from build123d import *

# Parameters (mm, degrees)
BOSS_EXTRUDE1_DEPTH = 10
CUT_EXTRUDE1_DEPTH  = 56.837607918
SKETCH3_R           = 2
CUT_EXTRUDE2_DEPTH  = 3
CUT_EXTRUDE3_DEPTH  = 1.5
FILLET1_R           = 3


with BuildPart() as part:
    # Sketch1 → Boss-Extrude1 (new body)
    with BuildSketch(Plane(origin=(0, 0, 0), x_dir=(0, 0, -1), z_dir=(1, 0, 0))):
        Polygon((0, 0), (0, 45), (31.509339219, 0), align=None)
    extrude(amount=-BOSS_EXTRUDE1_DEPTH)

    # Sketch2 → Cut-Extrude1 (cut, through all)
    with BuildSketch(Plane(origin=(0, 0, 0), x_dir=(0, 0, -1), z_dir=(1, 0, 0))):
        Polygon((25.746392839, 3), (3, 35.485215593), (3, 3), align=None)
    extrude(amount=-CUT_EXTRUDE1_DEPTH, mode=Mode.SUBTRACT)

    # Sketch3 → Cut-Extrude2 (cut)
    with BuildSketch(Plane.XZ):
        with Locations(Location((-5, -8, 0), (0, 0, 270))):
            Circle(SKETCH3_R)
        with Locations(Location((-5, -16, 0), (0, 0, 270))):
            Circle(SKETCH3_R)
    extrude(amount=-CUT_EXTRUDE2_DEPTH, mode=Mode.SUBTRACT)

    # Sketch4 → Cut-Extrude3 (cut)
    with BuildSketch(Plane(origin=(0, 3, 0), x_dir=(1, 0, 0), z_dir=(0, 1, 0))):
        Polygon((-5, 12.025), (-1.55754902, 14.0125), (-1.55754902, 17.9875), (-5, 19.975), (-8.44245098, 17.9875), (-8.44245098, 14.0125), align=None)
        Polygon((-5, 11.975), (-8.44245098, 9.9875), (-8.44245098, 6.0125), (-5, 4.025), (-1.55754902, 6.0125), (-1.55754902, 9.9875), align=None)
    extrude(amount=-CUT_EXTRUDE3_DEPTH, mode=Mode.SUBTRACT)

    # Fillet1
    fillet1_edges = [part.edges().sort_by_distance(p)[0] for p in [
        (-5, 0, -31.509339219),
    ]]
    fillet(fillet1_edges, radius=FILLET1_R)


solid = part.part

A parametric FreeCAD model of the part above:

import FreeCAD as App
import Part
import Sketcher

V = App.Vector
Q = App.Units.Quantity


def edges_at(feature, points):
    """Names of the edges that pass closest to the given points."""
    edges = feature.Shape.Edges
    near = lambda p: min(range(len(edges)), key=lambda i: edges[i].distToShape(Part.Vertex(*p))[0])
    return sorted({f"Edge{near(p) + 1}" for p in points})


def add_polygon(sketch, points):
    """Adds a closed chain of lines whose ends are joined by coincident constraints."""
    first, n = sketch.GeometryCount, len(points)
    for a, b in zip(points, points[1:] + points[:1]):
        sketch.addGeometry(Part.LineSegment(App.Vector(*a, 0), App.Vector(*b, 0)), False)
    for i in range(n):
        sketch.addConstraint(Sketcher.Constraint("Coincident", first + i, 2, first + (i + 1) % n, 1))

doc = App.newDocument("Part")
body = doc.addObject("PartDesign::Body", "Body")

# Sketch on YZ plane
sketch1 = doc.addObject("Sketcher::SketchObject", "Sketch")
body.addObject(sketch1)
sketch1.AttachmentSupport = (doc.YZ_Plane, [""])
sketch1.MapMode = "FlatFace"
add_polygon(sketch1, [(45, 0), (0, 0), (0, -32)])  # lines 0-2
sketch1.addConstraint([
    Sketcher.Constraint("Horizontal", 0),
    Sketcher.Constraint("Vertical", 1),
    Sketcher.Constraint("Coincident", 0, 2, -1, 1),
    Sketcher.Constraint("DistanceX", 0, 2, 0, 1, Q("45 mm")),
    Sketcher.Constraint("Angle", 2, Q("35 deg")),
])
pad1 = doc.addObject("PartDesign::Pad", "Pad")
body.addObject(pad1)
pad1.Profile = sketch1
pad1.Length = 10
pad1.Reversed = True

# Sketch on YZ plane
sketch2 = doc.addObject("Sketcher::SketchObject", "Sketch001")
body.addObject(sketch2)
sketch2.AttachmentSupport = (doc.YZ_Plane, [""])
sketch2.MapMode = "FlatFace"
add_polygon(sketch2, [(3, -26), (35, -3), (3, -3)])  # lines 0-2
sketch2.addConstraint([
    Sketcher.Constraint("Horizontal", 1),
    Sketcher.Constraint("Vertical", 2),
    Sketcher.Constraint("Angle", 0, Q("35 deg")),
    Sketcher.Constraint("DistanceY", 0, 2, -1, 1, Q("3 mm")),
    Sketcher.Constraint("DistanceX", -1, 1, 1, 2, Q("3 mm")),
    Sketcher.Constraint("DistanceX", 1, 2, 1, 1, Q("32.485216 mm")),
])
pocket1 = doc.addObject("PartDesign::Pocket", "Pocket")
body.addObject(pocket1)
pocket1.Profile = sketch2
pocket1.Type = "ThroughAll"

# Sketch on XZ plane
sketch3 = doc.addObject("Sketcher::SketchObject", "Sketch002")
body.addObject(sketch3)
sketch3.AttachmentSupport = (doc.XZ_Plane, [""])
sketch3.MapMode = "FlatFace"
sketch3.addGeometry([
    Part.Circle(V(-5, -8, 0), V(0, 0, 1), 2),
    Part.Circle(V(-5, -16, 0), V(0, 0, 1), 2),
], False)
sketch3.addConstraint([
    Sketcher.Constraint("Equal", 0, 1),
    Sketcher.Constraint("Vertical", 0, 3, 1, 3),
    Sketcher.Constraint("Diameter", 0, Q("4 mm")),
    Sketcher.Constraint("DistanceX", 0, 3, -1, 1, Q("5 mm")),
    Sketcher.Constraint("DistanceY", 0, 3, -1, 1, Q("8 mm")),
    Sketcher.Constraint("DistanceY", 1, 3, -1, 1, Q("16 mm")),
])
pocket2 = doc.addObject("PartDesign::Pocket", "Pocket001")
body.addObject(pocket2)
pocket2.Profile = sketch3
pocket2.Length = 3

# Sketch on XZ plane
sketch4 = doc.addObject("Sketcher::SketchObject", "Sketch003")
body.addObject(sketch4)
sketch4.AttachmentSupport = (doc.XZ_Plane, [""])
sketch4.MapMode = "FlatFace"
sketch4.AttachmentOffset = App.Placement(V(0, 0, -3), App.Rotation())
add_polygon(sketch4, [(-5, -12), (-1.6, -14), (-1.6, -18), (-5, -20), (-8.4, -18), (-8.4, -14)])  # lines 0-5
add_polygon(sketch4, [(-5, -12), (-8.4, -10), (-8.4, -6), (-5, -4), (-1.6, -6), (-1.6, -10)])  # lines 6-11
sketch4.addConstraint([
    Sketcher.Constraint("Vertical", 1),
    Sketcher.Constraint("Vertical", 4),
    Sketcher.Constraint("Vertical", 7),
    Sketcher.Constraint("Vertical", 10),
    Sketcher.Constraint("Parallel", 0, 3),
    Sketcher.Constraint("Parallel", 2, 5),
    Sketcher.Constraint("Parallel", 3, 6),
    Sketcher.Constraint("Parallel", 5, 8),
    Sketcher.Constraint("Parallel", 6, 9),
    Sketcher.Constraint("Parallel", 8, 11),
    Sketcher.Constraint("Horizontal", 1, 2, 3, 2),
    Sketcher.Constraint("Horizontal", 0, 2, 4, 2),
    Sketcher.Constraint("Horizontal", 7, 2, 9, 2),
    Sketcher.Constraint("Horizontal", 6, 2, 10, 2),
    Sketcher.Constraint("Vertical", 2, 2, 5, 2),
    Sketcher.Constraint("Vertical", 4, 2, 6, 2),
    Sketcher.Constraint("Vertical", 5, 2, 8, 2),
    Sketcher.Constraint("Equal", 4, 7),
    Sketcher.Constraint("Angle", 0, Q("-30 deg")),
    Sketcher.Constraint("DistanceX", 2, 2, -1, 1, Q("5 mm")),
    Sketcher.Constraint("DistanceY", 3, 2, 6, 2, Q("8 mm")),
    Sketcher.Constraint("DistanceY", 1, 2, 1, 1, Q("3.975 mm")),
    Sketcher.Constraint("DistanceY", 2, 2, 5, 2, Q("7.95 mm")),
    Sketcher.Constraint("DistanceY", 2, 2, -1, 1, Q("19.975 mm")),
])
pocket3 = doc.addObject("PartDesign::Pocket", "Pocket002")
body.addObject(pocket3)
pocket3.Profile = sketch4
pocket3.Length = 1.5
pocket3.Reversed = True
doc.recompute()

fillet = doc.addObject("PartDesign::Fillet", "Fillet")
body.addObject(fillet)
fillet.Base = (pocket3, edges_at(pocket3, [(-5, 0, -31.509)]))
fillet.Radius = 3

doc.recompute()
